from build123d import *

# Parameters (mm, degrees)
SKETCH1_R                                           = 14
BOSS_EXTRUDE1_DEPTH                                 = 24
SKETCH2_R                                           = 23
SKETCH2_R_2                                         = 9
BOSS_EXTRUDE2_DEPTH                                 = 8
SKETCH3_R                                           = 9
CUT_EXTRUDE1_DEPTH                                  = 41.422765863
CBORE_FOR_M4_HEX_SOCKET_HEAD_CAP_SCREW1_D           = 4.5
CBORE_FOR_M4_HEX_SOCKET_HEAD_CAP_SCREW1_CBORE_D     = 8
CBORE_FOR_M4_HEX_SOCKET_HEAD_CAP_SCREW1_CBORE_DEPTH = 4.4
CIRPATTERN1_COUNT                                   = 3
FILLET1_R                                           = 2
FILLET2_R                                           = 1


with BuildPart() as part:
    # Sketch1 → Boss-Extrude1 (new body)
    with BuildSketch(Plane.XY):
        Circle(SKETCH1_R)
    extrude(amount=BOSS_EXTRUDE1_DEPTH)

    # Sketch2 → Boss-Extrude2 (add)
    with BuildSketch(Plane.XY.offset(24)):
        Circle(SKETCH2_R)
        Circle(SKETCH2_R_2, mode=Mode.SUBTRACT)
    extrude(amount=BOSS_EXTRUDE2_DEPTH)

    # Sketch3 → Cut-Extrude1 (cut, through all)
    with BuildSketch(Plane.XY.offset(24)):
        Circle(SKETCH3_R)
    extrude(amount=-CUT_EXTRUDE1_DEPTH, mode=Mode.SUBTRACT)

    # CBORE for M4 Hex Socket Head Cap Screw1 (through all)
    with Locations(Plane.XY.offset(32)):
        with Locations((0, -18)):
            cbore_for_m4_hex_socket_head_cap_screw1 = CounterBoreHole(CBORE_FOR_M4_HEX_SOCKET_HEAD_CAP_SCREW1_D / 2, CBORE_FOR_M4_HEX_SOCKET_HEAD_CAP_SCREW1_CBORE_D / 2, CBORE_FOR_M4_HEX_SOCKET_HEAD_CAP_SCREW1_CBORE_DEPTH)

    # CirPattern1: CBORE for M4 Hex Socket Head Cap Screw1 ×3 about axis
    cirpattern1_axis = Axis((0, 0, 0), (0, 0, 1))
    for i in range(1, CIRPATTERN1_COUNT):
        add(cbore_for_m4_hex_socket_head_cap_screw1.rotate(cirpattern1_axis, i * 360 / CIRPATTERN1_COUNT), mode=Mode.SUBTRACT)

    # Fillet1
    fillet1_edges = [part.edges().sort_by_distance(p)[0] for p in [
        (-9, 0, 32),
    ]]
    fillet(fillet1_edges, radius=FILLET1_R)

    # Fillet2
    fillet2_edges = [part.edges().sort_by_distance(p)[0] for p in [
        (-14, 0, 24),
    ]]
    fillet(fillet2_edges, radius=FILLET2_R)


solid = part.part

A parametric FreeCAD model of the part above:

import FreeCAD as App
import Part
import Sketcher
from FreeCAD import Vector
Q = App.Units.Quantity


def edges_at(feature, points):
    """Names of the edges that pass closest to the given points."""
    edges = feature.Shape.Edges
    near = lambda p: min(range(len(edges)), key=lambda i: edges[i].distToShape(Part.Vertex(*p))[0])
    return sorted({f"Edge{near(p) + 1}" for p in points})

doc = App.newDocument("Part")
body = doc.addObject("PartDesign::Body", "Body")

# Sketch on XY plane
sketch1 = body.newObject("Sketcher::SketchObject", "Sketch")
sketch1.AttachmentSupport = (doc.getObject("XY_Plane"), [""])
sketch1.MapMode = "FlatFace"
sketch1.addGeometry(Part.Circle(Vector(0, 0, 0), Vector(0, 0, 1), 14), False)
sketch1.addConstraint(Sketcher.Constraint("Coincident", 0, 3, -1, 1))
sketch1.addConstraint(Sketcher.Constraint("Diameter", 0, Q("28 mm")))
pad1 = body.newObject("PartDesign::Pad", "Pad")
pad1.Profile = sketch1
pad1.Length = 24

# Sketch on XY plane
sketch2 = body.newObject("Sketcher::SketchObject", "Sketch001")
sketch2.AttachmentSupport = (doc.getObject("XY_Plane"), [""])
sketch2.MapMode = "FlatFace"
sketch2.AttachmentOffset = App.Placement(Vector(0, 0, 24), App.Rotation())
sketch2.addGeometry(Part.Circle(Vector(0, 0, 0), Vector(0, 0, 1), 23), False)
sketch2.addGeometry(Part.Circle(Vector(0, 0, 0), Vector(0, 0, 1), 9), False)
sketch2.addConstraint(Sketcher.Constraint("Coincident", 0, 3, -1, 1))
sketch2.addConstraint(Sketcher.Constraint("Coincident", 1, 3, -1, 1))
sketch2.addConstraint(Sketcher.Constraint("Diameter", 0, Q("46 mm")))
sketch2.addConstraint(Sketcher.Constraint("Diameter", 1, Q("18 mm")))
pad2 = body.newObject("PartDesign::Pad", "Pad001")
pad2.Profile = sketch2
pad2.Length = 8

# Sketch on XY plane
sketch3 = body.newObject("Sketcher::SketchObject", "Sketch002")
sketch3.AttachmentSupport = (doc.getObject("XY_Plane"), [""])
sketch3.MapMode = "FlatFace"
sketch3.AttachmentOffset = App.Placement(Vector(0, 0, 24), App.Rotation())
sketch3.addGeometry(Part.Circle(Vector(0, 0, 0), Vector(0, 0, 1), 9), False)
sketch3.addConstraint(Sketcher.Constraint("Coincident", 0, 3, -1, 1))
sketch3.addConstraint(Sketcher.Constraint("Diameter", 0, Q("18 mm")))
pocket1 = body.newObject("PartDesign::Pocket", "Pocket")
pocket1.Profile = sketch3
pocket1.Type = "ThroughAll"

# Sketch on XY plane
sketch4 = body.newObject("Sketcher::SketchObject", "Sketch003")
sketch4.AttachmentSupport = (doc.getObject("XY_Plane"), [""])
sketch4.MapMode = "FlatFace"
sketch4.AttachmentOffset = App.Placement(Vector(0, 0, 32), App.Rotation())
sketch4.addGeometry(Part.Circle(Vector(0, -18, 0), Vector(0, 0, 1), 2.2), False)
sketch4.addConstraint(Sketcher.Constraint("PointOnObject", 0, 3, -2))
sketch4.addConstraint(Sketcher.Constraint("Diameter", 0, Q("4.5 mm")))
sketch4.addConstraint(Sketcher.Constraint("DistanceY", 0, 3, -1, 1, Q("18 mm")))
doc.recompute()
hole = body.newObject("PartDesign::Hole", "Hole")
hole.Profile = sketch4
hole.ThreadType = "None"
hole.Diameter = 4.5
hole.DepthType = "ThroughAll"
hole.HoleCutType = "Counterbore"
hole.HoleCutDiameter = 8
hole.HoleCutDepth = 4.4
doc.recompute()

polarpattern = body.newObject("PartDesign::PolarPattern", "PolarPattern")
polarpattern.Originals = [hole]
polarpattern.Axis = (doc.getObject("Z_Axis"), [""])
polarpattern.Angle = 360
polarpattern.Occurrences = 3
body.Tip = polarpattern
doc.recompute()

fillet = body.newObject("PartDesign::Fillet", "Fillet")
fillet.Base = (polarpattern, edges_at(polarpattern, [(-9, 0, 32)]))
fillet.Radius = 2
doc.recompute()

fillet2 = body.newObject("PartDesign::Fillet", "Fillet001")
fillet2.Base = (fillet, edges_at(fillet, [(-14, 0, 24)]))
fillet2.Radius = 1

doc.recompute()
